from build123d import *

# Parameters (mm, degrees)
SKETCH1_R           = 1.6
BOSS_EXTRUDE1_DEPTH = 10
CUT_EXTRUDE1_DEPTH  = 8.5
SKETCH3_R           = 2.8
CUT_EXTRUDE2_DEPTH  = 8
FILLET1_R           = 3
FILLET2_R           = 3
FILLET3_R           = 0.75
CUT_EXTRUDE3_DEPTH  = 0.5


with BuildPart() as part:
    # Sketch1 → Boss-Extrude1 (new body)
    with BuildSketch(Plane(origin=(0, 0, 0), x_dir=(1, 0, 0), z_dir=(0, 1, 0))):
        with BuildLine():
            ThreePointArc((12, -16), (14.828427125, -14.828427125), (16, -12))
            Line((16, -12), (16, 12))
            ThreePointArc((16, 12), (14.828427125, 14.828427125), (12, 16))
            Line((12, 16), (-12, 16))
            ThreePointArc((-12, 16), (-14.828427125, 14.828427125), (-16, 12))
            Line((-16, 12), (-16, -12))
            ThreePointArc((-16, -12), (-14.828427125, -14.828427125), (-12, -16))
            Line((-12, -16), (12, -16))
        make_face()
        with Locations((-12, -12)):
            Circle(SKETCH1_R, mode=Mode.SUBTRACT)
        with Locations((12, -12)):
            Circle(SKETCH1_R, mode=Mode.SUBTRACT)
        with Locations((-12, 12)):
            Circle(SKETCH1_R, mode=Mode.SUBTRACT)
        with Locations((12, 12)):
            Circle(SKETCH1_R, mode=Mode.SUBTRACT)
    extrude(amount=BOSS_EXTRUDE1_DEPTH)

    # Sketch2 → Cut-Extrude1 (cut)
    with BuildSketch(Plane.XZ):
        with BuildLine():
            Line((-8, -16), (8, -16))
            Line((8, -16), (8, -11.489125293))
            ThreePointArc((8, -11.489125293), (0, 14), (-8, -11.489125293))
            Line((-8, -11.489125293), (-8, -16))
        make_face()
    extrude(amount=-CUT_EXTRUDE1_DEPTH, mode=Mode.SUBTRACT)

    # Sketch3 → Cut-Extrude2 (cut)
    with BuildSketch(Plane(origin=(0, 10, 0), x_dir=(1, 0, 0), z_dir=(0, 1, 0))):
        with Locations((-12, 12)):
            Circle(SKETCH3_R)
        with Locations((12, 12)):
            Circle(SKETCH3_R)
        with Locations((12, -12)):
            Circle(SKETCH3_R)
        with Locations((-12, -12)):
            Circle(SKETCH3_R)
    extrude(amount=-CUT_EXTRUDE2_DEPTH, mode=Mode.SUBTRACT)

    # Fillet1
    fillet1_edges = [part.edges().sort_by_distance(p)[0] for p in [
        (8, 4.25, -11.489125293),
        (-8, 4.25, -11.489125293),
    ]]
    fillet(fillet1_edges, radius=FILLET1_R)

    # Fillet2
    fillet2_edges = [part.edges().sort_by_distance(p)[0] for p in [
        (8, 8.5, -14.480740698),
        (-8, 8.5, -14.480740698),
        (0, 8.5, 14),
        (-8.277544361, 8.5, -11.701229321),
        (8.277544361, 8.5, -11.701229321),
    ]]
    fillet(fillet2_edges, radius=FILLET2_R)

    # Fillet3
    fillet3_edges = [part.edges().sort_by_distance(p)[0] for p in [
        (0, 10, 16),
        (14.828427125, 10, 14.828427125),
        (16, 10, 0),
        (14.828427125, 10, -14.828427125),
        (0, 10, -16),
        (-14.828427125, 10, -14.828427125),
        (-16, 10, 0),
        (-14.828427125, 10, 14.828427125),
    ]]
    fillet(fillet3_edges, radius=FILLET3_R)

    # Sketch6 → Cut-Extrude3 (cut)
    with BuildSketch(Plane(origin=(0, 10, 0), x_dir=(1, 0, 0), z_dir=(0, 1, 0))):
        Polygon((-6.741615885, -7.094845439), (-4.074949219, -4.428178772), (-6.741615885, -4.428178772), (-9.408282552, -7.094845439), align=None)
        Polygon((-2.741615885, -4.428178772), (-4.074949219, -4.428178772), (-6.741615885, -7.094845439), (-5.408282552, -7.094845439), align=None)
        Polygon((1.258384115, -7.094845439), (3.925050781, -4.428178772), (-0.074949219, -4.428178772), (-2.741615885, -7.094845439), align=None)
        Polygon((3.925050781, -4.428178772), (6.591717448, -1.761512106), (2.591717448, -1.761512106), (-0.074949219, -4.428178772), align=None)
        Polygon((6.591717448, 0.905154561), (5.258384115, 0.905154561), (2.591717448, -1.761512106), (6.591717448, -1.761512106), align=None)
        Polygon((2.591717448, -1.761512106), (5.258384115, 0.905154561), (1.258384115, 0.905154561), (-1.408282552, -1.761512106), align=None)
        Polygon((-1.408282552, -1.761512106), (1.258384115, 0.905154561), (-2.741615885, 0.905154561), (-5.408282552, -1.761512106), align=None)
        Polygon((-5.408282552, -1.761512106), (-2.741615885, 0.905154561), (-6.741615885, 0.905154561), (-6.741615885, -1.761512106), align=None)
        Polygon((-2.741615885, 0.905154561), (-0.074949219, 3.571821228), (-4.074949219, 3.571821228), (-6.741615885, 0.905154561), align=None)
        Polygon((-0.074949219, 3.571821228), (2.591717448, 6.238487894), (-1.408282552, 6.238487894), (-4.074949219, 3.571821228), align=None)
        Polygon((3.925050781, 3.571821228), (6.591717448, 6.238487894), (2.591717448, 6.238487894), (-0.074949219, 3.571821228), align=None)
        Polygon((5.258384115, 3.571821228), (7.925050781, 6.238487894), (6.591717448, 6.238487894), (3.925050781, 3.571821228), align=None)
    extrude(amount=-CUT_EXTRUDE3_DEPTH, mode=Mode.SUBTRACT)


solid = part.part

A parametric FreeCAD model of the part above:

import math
import FreeCAD as App
import Part
import Sketcher

V = App.Vector
Q = App.Units.Quantity


def edges_at(feature, points):
    """Names of the edges that pass closest to the given points."""
    edges = feature.Shape.Edges
    near = lambda p: min(range(len(edges)), key=lambda i: edges[i].distToShape(Part.Vertex(*p))[0])
    return sorted({f"Edge{near(p) + 1}" for p in points})


def add_polygon(sketch, points):
    """Adds a closed chain of lines whose ends are joined by coincident constraints."""
    first, n = sketch.GeometryCount, len(points)
    for a, b in zip(points, points[1:] + points[:1]):
        sketch.addGeometry(Part.LineSegment(App.Vector(*a, 0), App.Vector(*b, 0)), False)
    for i in range(n):
        sketch.addConstraint(Sketcher.Constraint("Coincident", first + i, 2, first + (i + 1) % n, 1))

doc = App.newDocument("Part")
body = doc.addObject("PartDesign::Body", "Body")

# Sketch on XZ plane
sketch1 = body.newObject("Sketcher::SketchObject", "Sketch")
sketch1.AttachmentSupport = (doc.getObject("XZ_Plane"), [""])
sketch1.MapMode = "FlatFace"
sketch1.addGeometry(Part.ArcOfCircle(Part.Circle(V(12, 12, 0), V(0, 0, 1), 4), math.radians(0), math.radians(90)), False)
sketch1.addGeometry(Part.LineSegment(V(16, 12, 0), V(16, -12, 0)), False)
sketch1.addGeometry(Part.ArcOfCircle(Part.Circle(V(12, -12, 0), V(0, 0, 1), 4), math.radians(-90), math.radians(0)), False)
sketch1.addGeometry(Part.LineSegment(V(12, -16, 0), V(-12, -16, 0)), False)
sketch1.addGeometry(Part.ArcOfCircle(Part.Circle(V(-12, -12, 0), V(0, 0, 1), 4), math.radians(180), math.radians(270)), False)
sketch1.addGeometry(Part.LineSegment(V(-16, -12, 0), V(-16, 12, 0)), False)
sketch1.addGeometry(Part.ArcOfCircle(Part.Circle(V(-12, 12, 0), V(0, 0, 1), 4), math.radians(90), math.radians(180)), False)
sketch1.addGeometry(Part.LineSegment(V(-12, 16, 0), V(12, 16, 0)), False)
sketch1.addGeometry(Part.Circle(V(-12, 12, 0), V(0, 0, 1), 1.6), False)
sketch1.addGeometry(Part.Circle(V(12, 12, 0), V(0, 0, 1), 1.6), False)
sketch1.addGeometry(Part.Circle(V(-12, -12, 0), V(0, 0, 1), 1.6), False)
sketch1.addGeometry(Part.Circle(V(12, -12, 0), V(0, 0, 1), 1.6), False)
sketch1.addConstraint(Sketcher.Constraint("Tangent", 0, 1, 1, 1))
sketch1.addConstraint(Sketcher.Constraint("Tangent", 1, 2, 2, 2))
sketch1.addConstraint(Sketcher.Constraint("Tangent", 2, 1, 3, 1))
sketch1.addConstraint(Sketcher.Constraint("Tangent", 3, 2, 4, 2))
sketch1.addConstraint(Sketcher.Constraint("Tangent", 4, 1, 5, 1))
sketch1.addConstraint(Sketcher.Constraint("Tangent", 5, 2, 6, 2))
sketch1.addConstraint(Sketcher.Constraint("Tangent", 6, 1, 7, 1))
sketch1.addConstraint(Sketcher.Constraint("Tangent", 7, 2, 0, 2))
sketch1.addConstraint(Sketcher.Constraint("Vertical", 1))
sketch1.addConstraint(Sketcher.Constraint("Horizontal", 3))
sketch1.addConstraint(Sketcher.Constraint("Vertical", 5))
sketch1.addConstraint(Sketcher.Constraint("Horizontal", 7))
sketch1.addConstraint(Sketcher.Constraint("Coincident", 8, 3, 6, 3))
sketch1.addConstraint(Sketcher.Constraint("Coincident", 9, 3, 0, 3))
sketch1.addConstraint(Sketcher.Constraint("Coincident", 10, 3, 4, 3))
sketch1.addConstraint(Sketcher.Constraint("Coincident", 11, 3, 2, 3))
sketch1.addConstraint(Sketcher.Constraint("Equal", 0, 2))
sketch1.addConstraint(Sketcher.Constraint("Equal", 2, 4))
sketch1.addConstraint(Sketcher.Constraint("Equal", 4, 6))
sketch1.addConstraint(Sketcher.Constraint("Equal", 8, 9))
sketch1.addConstraint(Sketcher.Constraint("Equal", 9, 10))
sketch1.addConstraint(Sketcher.Constraint("Equal", 10, 11))
sketch1.addConstraint(Sketcher.Constraint("Symmetric", 0, 3, 4, 3, -1, 1))
sketch1.addConstraint(Sketcher.Constraint("Equal", 7, 1))
sketch1.addConstraint(Sketcher.Constraint("Radius", 0, 4.0))
sketch1.addConstraint(Sketcher.Constraint("Diameter", 8, 3.2))
sketch1.addConstraint(Sketcher.Constraint("DistanceX", 3, 2, 3, 1, 24.0))
pad1 = body.newObject("PartDesign::Pad", "Pad")
pad1.Profile = sketch1
pad1.Length = 10
pad1.Reversed = True

# Sketch on XZ plane
sketch2 = body.newObject("Sketcher::SketchObject", "Sketch001")
sketch2.AttachmentSupport = (doc.getObject("XZ_Plane"), [""])
sketch2.MapMode = "FlatFace"
sketch2.addGeometry(Part.LineSegment(V(-8, -16, 0), V(8, -16, 0)), False)
sketch2.addGeometry(Part.LineSegment(V(8, -16, 0), V(8, -11.5, 0)), False)
sketch2.addGeometry(Part.ArcOfCircle(Part.Circle(V(0, 0, 0), V(0, 0, 1), 14), math.radians(-55), math.radians(235)), False)
sketch2.addGeometry(Part.LineSegment(V(-8, -11.5, 0), V(-8, -16, 0)), False)
sketch2.addConstraint(Sketcher.Constraint("Coincident", 0, 2, 1, 1))
sketch2.addConstraint(Sketcher.Constraint("Coincident", 1, 2, 2, 1))
sketch2.addConstraint(Sketcher.Constraint("Coincident", 2, 2, 3, 1))
sketch2.addConstraint(Sketcher.Constraint("Coincident", 3, 2, 0, 1))
sketch2.addConstraint(Sketcher.Constraint("Horizontal", 0))
sketch2.addConstraint(Sketcher.Constraint("Vertical", 1))
sketch2.addConstraint(Sketcher.Constraint("Vertical", 3))
sketch2.addConstraint(Sketcher.Constraint("Coincident", 2, 3, -1, 1))
sketch2.addConstraint(Sketcher.Constraint("Horizontal", 1, 2, 2, 2))
sketch2.addConstraint(Sketcher.Constraint("Radius", 2, 14.0))
sketch2.addConstraint(Sketcher.Constraint("DistanceX", 0, 1, 0, 2, 16.0))
sketch2.addConstraint(Sketcher.Constraint("DistanceY", 0, 2, -1, 1, 16.0))
pocket1 = body.newObject("PartDesign::Pocket", "Pocket")
pocket1.Profile = sketch2
pocket1.Length = 8.5

# Sketch on XZ plane
sketch3 = body.newObject("Sketcher::SketchObject", "Sketch002")
sketch3.AttachmentSupport = (doc.getObject("XZ_Plane"), [""])
sketch3.MapMode = "FlatFace"
sketch3.AttachmentOffset = App.Placement(V(0, 0, -10), App.Rotation())
sketch3.addGeometry(Part.Circle(V(-12, -12, 0), V(0, 0, 1), 2.8), False)
sketch3.addGeometry(Part.Circle(V(12, -12, 0), V(0, 0, 1), 2.8), False)
sketch3.addGeometry(Part.Circle(V(12, 12, 0), V(0, 0, 1), 2.8), False)
sketch3.addGeometry(Part.Circle(V(-12, 12, 0), V(0, 0, 1), 2.8), False)
sketch3.addConstraint(Sketcher.Constraint("Equal", 0, 1))
sketch3.addConstraint(Sketcher.Constraint("Equal", 1, 2))
sketch3.addConstraint(Sketcher.Constraint("Equal", 2, 3))
sketch3.addConstraint(Sketcher.Constraint("Symmetric", 0, 3, 2, 3, -1, 1))
sketch3.addConstraint(Sketcher.Constraint("Symmetric", 1, 3, 3, 3, -1, 1))
sketch3.addConstraint(Sketcher.Constraint("Symmetric", 0, 3, 1, 3, -2))
sketch3.addConstraint(Sketcher.Constraint("Diameter", 0, 5.6))
sketch3.addConstraint(Sketcher.Constraint("DistanceX", 0, 3, -1, 1, 12.0))
sketch3.addConstraint(Sketcher.Constraint("DistanceY", 0, 3, -1, 1, 12.0))
pocket2 = body.newObject("PartDesign::Pocket", "Pocket001")
pocket2.Profile = sketch3
pocket2.Length = 8
pocket2.Reversed = True
doc.recompute()

fillet = body.newObject("PartDesign::Fillet", "Fillet")
fillet.Base = (pocket2, edges_at(pocket2, [(8, 4.25, -11.489), (-8, 4.25, -11.489)]))
fillet.Radius = 3
doc.recompute()

fillet2 = body.newObject("PartDesign::Fillet", "Fillet001")
fillet2.Base = (fillet, edges_at(fillet, [
    (8, 8.5, -14.481),
    (-8, 8.5, -14.481),
    (0, 8.5, 14),
    (-8.278, 8.5, -11.701),
    (8.278, 8.5, -11.701),
]))
fillet2.Radius = 3
doc.recompute()

fillet3 = body.newObject("PartDesign::Fillet", "Fillet002")
fillet3.Base = (fillet2, edges_at(fillet2, [
    (0, 10, 16),
    (14.828, 10, 14.828),
    (16, 10, 0),
    (14.828, 10, -14.828),
    (0, 10, -16),
    (-14.828, 10, -14.828),
    (-16, 10, 0),
    (-14.828, 10, 14.828),
]))
fillet3.Radius = 0.75

# Sketch on XZ plane
sketch4 = body.newObject("Sketcher::SketchObject", "Sketch003")
sketch4.AttachmentSupport = (doc.getObject("XZ_Plane"), [""])
sketch4.MapMode = "FlatFace"
sketch4.AttachmentOffset = App.Placement(V(0, 0, -10), App.Rotation())
add_polygon(sketch4, [(-6.7, 4.4), (-9.4, 7.1), (-5.4, 7.1), (-2.7, 4.4)])  # lines 0-3
add_polygon(sketch4, [(1.3, 7.1), (3.9, 4.4), (6.6, 1.8), (6.6, -0.9), (-2.7, -0.9), (-0.1, -3.6), (5.3, -3.6), (7.9, -6.2), (-1.4, -6.2), (-4.1, -3.6), (-6.7, -0.9), (-6.7, 1.8), (2.6, 1.8), (-0.1, 4.4), (-2.7, 7.1)])  # lines 4-18
sketch4.addConstraint(Sketcher.Constraint("Horizontal", 1))
sketch4.addConstraint(Sketcher.Constraint("Horizontal", 3))
sketch4.addConstraint(Sketcher.Constraint("Vertical", 6))
sketch4.addConstraint(Sketcher.Constraint("Horizontal", 7))
sketch4.addConstraint(Sketcher.Constraint("Horizontal", 9))
sketch4.addConstraint(Sketcher.Constraint("Horizontal", 11))
sketch4.addConstraint(Sketcher.Constraint("Vertical", 14))
sketch4.addConstraint(Sketcher.Constraint("Horizontal", 15))
sketch4.addConstraint(Sketcher.Constraint("Horizontal", 18))
sketch4.addConstraint(Sketcher.Constraint("Parallel", 0, 2))
sketch4.addConstraint(Sketcher.Constraint("Parallel", 2, 4))
sketch4.addConstraint(Sketcher.Constraint("Parallel", 4, 5))
sketch4.addConstraint(Sketcher.Constraint("Parallel", 5, 8))
sketch4.addConstraint(Sketcher.Constraint("Parallel", 8, 10))
sketch4.addConstraint(Sketcher.Constraint("Parallel", 10, 12))
sketch4.addConstraint(Sketcher.Constraint("Parallel", 12, 13))
sketch4.addConstraint(Sketcher.Constraint("Parallel", 13, 16))
sketch4.addConstraint(Sketcher.Constraint("Parallel", 16, 17))
sketch4.addConstraint(Sketcher.Constraint("Horizontal", 3, 2, 4, 2))
sketch4.addConstraint(Sketcher.Constraint("Horizontal", 9, 2, 12, 2))
sketch4.addConstraint(Sketcher.Constraint("Horizontal", 7, 2, 13, 2))
sketch4.addConstraint(Sketcher.Constraint("Horizontal", 5, 2, 14, 2))
sketch4.addConstraint(Sketcher.Constraint("Horizontal", 4, 2, 16, 2))
sketch4.addConstraint(Sketcher.Constraint("Horizontal", 1, 2, 17, 2))
sketch4.addConstraint(Sketcher.Constraint("Vertical", 2, 2, 7, 2))
sketch4.addConstraint(Sketcher.Constraint("Vertical", 3, 2, 13, 2))
sketch4.addConstraint(Sketcher.Constraint("Vertical", 8, 2, 16, 2))
sketch4.addConstraint(Sketcher.Constraint("Vertical", 7, 2, 17, 2))
sketch4.addConstraint(Sketcher.Constraint("Equal", 7, 11))
sketch4.addConstraint(Sketcher.Constraint("Equal", 11, 15))
sketch4.addConstraint(Sketcher.Constraint("Equal", 4, 5))
sketch4.addConstraint(Sketcher.Constraint("Equal", 8, 10))
sketch4.addConstraint(Sketcher.Constraint("DistanceX", 1, 1, 1, 2, 4.0))
sketch4.addConstraint(Sketcher.Constraint("Angle", 0, Q("135 deg")))
sketch4.addConstraint(Sketcher.Constraint("DistanceX", 1, 2, 5, 2, 12.0))
sketch4.addConstraint(Sketcher.Constraint("DistanceY", 6, 2, 1, 2, 8.0))
sketch4.addConstraint(Sketcher.Constraint("DistanceY", -1, 1, 2, 2, 4.428179))
sketch4.addConstraint(Sketcher.Constraint("DistanceX", -1, 1, 4, 2, 3.925051))
pocket3 = body.newObject("PartDesign::Pocket", "Pocket002")
pocket3.Profile = sketch4
pocket3.Length = 0.5
pocket3.Reversed = True

doc.recompute()
